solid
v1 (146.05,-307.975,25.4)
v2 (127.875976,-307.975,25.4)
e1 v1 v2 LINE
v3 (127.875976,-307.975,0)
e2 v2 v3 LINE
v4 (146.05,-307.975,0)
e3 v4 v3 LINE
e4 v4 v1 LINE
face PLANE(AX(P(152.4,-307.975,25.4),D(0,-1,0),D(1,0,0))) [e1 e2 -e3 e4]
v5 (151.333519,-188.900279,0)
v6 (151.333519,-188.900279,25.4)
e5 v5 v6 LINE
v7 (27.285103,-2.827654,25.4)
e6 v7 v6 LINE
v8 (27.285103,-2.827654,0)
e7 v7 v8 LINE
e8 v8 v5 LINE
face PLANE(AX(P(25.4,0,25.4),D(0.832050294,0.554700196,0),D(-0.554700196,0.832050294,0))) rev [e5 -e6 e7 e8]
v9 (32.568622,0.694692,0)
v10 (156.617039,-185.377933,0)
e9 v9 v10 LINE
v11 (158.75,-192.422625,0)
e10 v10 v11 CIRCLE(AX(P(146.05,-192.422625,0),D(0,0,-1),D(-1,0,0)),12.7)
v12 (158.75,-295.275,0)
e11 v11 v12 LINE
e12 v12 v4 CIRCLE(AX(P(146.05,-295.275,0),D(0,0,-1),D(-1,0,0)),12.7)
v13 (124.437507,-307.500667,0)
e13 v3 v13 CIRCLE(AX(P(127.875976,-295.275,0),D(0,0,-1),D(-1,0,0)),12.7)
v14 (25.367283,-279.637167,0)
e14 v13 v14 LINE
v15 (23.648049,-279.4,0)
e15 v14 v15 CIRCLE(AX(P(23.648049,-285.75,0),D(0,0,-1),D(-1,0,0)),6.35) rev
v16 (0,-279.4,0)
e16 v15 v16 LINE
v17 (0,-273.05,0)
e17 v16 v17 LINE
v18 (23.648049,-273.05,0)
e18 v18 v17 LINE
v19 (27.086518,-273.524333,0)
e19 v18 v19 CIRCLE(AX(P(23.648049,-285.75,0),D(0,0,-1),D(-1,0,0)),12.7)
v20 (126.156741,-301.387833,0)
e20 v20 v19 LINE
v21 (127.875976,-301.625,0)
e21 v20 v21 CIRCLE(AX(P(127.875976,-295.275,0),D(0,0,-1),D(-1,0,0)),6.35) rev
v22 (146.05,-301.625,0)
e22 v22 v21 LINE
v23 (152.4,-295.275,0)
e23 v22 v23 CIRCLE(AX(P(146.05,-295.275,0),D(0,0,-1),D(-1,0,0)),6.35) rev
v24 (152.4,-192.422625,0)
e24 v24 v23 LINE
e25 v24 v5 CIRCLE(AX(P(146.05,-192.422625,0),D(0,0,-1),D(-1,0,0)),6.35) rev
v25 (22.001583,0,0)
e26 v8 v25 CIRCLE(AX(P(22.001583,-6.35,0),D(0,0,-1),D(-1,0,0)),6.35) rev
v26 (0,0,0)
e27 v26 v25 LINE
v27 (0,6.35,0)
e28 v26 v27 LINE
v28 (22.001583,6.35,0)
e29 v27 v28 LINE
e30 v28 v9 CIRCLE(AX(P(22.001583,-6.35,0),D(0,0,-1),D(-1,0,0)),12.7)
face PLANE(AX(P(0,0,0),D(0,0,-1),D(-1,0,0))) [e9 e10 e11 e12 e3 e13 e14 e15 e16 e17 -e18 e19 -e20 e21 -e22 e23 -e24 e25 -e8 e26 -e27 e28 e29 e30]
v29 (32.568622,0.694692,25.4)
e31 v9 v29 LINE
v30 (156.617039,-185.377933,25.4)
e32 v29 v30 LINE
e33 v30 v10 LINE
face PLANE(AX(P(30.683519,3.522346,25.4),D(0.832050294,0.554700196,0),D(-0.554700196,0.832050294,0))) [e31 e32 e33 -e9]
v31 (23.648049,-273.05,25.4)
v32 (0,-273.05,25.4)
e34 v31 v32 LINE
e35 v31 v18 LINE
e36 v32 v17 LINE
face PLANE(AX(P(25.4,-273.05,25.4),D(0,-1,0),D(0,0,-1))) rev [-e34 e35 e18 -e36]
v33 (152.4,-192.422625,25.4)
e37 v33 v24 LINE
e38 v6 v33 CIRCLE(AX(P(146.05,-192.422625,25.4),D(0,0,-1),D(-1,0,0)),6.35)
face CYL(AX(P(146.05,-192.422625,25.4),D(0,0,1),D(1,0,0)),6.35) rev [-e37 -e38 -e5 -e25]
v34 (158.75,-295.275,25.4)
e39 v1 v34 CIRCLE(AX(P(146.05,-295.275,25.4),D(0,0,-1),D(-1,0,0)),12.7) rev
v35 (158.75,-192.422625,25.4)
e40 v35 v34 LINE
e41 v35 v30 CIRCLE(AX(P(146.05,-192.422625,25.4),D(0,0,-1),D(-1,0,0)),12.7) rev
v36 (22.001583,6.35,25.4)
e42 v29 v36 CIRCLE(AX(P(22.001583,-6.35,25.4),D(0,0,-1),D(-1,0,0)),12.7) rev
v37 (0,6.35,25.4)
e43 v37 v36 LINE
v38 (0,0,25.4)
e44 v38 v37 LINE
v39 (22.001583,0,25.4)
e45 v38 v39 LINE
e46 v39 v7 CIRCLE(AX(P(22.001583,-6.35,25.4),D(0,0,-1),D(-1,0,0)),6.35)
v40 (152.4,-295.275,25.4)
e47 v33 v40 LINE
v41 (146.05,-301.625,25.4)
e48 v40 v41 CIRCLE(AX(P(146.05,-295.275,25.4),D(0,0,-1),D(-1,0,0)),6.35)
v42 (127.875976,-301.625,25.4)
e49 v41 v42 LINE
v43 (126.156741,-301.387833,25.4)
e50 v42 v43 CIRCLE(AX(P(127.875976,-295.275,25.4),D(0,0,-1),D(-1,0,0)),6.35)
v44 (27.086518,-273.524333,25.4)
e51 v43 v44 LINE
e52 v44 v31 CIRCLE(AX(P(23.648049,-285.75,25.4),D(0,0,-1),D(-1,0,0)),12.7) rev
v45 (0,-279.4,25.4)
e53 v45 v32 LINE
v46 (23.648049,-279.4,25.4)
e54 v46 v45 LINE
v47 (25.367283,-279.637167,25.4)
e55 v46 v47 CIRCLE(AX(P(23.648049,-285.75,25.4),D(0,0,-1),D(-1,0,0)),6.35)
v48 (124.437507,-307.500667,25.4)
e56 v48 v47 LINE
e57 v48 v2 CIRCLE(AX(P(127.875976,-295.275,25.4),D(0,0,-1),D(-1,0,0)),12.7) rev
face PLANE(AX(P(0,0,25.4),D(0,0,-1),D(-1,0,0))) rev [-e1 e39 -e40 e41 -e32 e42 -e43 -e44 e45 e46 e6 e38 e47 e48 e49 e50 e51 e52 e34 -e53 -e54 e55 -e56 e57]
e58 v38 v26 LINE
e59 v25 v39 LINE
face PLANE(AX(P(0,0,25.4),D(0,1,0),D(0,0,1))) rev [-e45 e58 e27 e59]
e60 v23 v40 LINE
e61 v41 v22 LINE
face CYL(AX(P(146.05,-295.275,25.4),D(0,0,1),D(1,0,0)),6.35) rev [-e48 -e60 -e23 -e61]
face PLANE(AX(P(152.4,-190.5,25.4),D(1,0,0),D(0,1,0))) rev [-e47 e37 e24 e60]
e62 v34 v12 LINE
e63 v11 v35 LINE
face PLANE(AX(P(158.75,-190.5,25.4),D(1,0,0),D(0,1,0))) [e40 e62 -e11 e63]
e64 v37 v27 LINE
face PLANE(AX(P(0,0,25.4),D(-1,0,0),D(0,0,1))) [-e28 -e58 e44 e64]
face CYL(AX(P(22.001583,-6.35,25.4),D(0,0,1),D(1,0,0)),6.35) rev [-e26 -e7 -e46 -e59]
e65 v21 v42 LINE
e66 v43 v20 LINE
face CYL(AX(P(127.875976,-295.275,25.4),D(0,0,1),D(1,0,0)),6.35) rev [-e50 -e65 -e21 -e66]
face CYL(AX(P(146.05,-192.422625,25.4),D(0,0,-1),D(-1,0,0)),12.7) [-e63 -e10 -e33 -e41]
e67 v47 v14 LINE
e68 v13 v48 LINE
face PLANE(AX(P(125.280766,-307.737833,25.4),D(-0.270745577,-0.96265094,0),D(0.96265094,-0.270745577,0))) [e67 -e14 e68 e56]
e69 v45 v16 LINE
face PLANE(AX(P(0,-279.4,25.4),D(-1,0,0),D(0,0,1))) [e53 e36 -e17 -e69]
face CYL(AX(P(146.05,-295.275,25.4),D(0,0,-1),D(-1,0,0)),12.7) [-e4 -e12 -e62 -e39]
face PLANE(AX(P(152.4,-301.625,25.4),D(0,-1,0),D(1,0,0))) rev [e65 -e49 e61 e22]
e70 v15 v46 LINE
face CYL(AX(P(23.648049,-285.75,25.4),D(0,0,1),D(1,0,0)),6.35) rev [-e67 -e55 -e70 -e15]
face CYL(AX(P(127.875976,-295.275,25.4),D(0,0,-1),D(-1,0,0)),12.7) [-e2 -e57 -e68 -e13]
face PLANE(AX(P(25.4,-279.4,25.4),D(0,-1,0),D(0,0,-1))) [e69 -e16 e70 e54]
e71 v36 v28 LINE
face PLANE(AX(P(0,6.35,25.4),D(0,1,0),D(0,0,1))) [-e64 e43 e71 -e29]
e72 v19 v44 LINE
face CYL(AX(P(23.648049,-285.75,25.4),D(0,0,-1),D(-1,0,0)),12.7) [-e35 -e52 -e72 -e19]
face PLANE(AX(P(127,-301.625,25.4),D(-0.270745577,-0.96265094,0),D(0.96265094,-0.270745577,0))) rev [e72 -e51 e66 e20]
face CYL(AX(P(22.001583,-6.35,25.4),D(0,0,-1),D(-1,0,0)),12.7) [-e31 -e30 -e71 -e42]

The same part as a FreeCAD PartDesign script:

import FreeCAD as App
import Part
import Sketcher
from FreeCAD import Vector
Q = App.Units.Quantity


def edges_at(feature, points):
    """Names of the edges that pass closest to the given points."""
    edges = feature.Shape.Edges
    near = lambda p: min(range(len(edges)), key=lambda i: edges[i].distToShape(Part.Vertex(*p))[0])
    return sorted({f"Edge{near(p) + 1}" for p in points})

doc = App.newDocument("Part")
body = doc.addObject("PartDesign::Body", "Body")

sketch1 = body.newObject("Sketcher::SketchObject", "Sketch")
sketch1.AttachmentSupport = (doc.getObject("XY_Plane"), [""])
sketch1.MapMode = "FlatFace"
sketch1.addGeometry([
    Part.LineSegment(Vector(0, 0, 0), Vector(25, 0, 0)),
    Part.LineSegment(Vector(25, 0, 0), Vector(152, -190, 0)),
    Part.LineSegment(Vector(152, -190, 0), Vector(152, -302, 0)),
    Part.LineSegment(Vector(152, -302, 0), Vector(127, -302, 0)),
    Part.LineSegment(Vector(127, -302, 0), Vector(25, -273, 0)),
    Part.LineSegment(Vector(25, -273, 0), Vector(0, -273, 0)),
    Part.LineSegment(Vector(0, -273, 0), Vector(0, -279, 0)),
    Part.LineSegment(Vector(0, -279, 0), Vector(25, -279, 0)),
    Part.LineSegment(Vector(25, -279, 0), Vector(126, -308, 0)),
    Part.LineSegment(Vector(126, -308, 0), Vector(159, -308, 0)),
    Part.LineSegment(Vector(159, -308, 0), Vector(159, -189, 0)),
    Part.LineSegment(Vector(159, -189, 0), Vector(29, 6, 0)),
    Part.LineSegment(Vector(29, 6, 0), Vector(0, 6, 0)),
    Part.LineSegment(Vector(0, 6, 0), Vector(0, 0, 0)),
], False)
sketch1.addConstraint([
    Sketcher.Constraint("Coincident", 0, 2, 1, 1),
    Sketcher.Constraint("Coincident", 1, 2, 2, 1),
    Sketcher.Constraint("Coincident", 2, 2, 3, 1),
    Sketcher.Constraint("Coincident", 3, 2, 4, 1),
    Sketcher.Constraint("Coincident", 4, 2, 5, 1),
    Sketcher.Constraint("Coincident", 5, 2, 6, 1),
    Sketcher.Constraint("Coincident", 6, 2, 7, 1),
    Sketcher.Constraint("Coincident", 7, 2, 8, 1),
    Sketcher.Constraint("Coincident", 8, 2, 9, 1),
    Sketcher.Constraint("Coincident", 9, 2, 10, 1),
    Sketcher.Constraint("Coincident", 10, 2, 11, 1),
    Sketcher.Constraint("Coincident", 11, 2, 12, 1),
    Sketcher.Constraint("Coincident", 12, 2, 13, 1),
    Sketcher.Constraint("Coincident", 13, 2, 0, 1),
    Sketcher.Constraint("Horizontal", 0),
    Sketcher.Constraint("Vertical", 2),
    Sketcher.Constraint("Horizontal", 3),
    Sketcher.Constraint("Horizontal", 5),
    Sketcher.Constraint("Vertical", 6),
    Sketcher.Constraint("Horizontal", 7),
    Sketcher.Constraint("Horizontal", 9),
    Sketcher.Constraint("Vertical", 10),
    Sketcher.Constraint("Horizontal", 12),
    Sketcher.Constraint("Vertical", 13),
    Sketcher.Constraint("Coincident", 13, 2, -1, 1),
    Sketcher.Constraint("PointOnObject", 5, 2, -2),
    Sketcher.Constraint("Parallel", 4, 8),
    Sketcher.Constraint("Parallel", 1, 11),
    Sketcher.Constraint("Vertical", 0, 2, 4, 2),
    Sketcher.Constraint("Equal", 0, 3),
    Sketcher.Constraint("Equal", 6, 13),
    Sketcher.Constraint("Equal", 4, 8),
    Sketcher.Constraint("DistanceX", 0, 1, 0, 2, Q("1 in")),
    Sketcher.Constraint("DistanceX", -1, 1, 1, 2, Q("6 in")),
    Sketcher.Constraint("DistanceY", 6, 2, -1, 1, Q("11 in")),
    Sketcher.Constraint("DistanceY", 6, 2, 6, 1, Q("0.25 in")),
    Sketcher.Constraint("DistanceY", 1, 2, -1, 1, Q("7.5 in")),
    Sketcher.Constraint("DistanceY", 2, 2, 2, 1, Q("4.375 in")),
    Sketcher.Constraint("DistanceX", -1, 1, 9, 2, Q("6.25 in")),
    Sketcher.Constraint("Distance", 11, 234.273548),
    Sketcher.Constraint("DistanceX", 7, 1, 7, 2, 24.524024),
])
pad1 = body.newObject("PartDesign::Pad", "Pad")
pad1.Profile = sketch1
pad1.Length = Q("1 in")
doc.recompute()

fillet = body.newObject("PartDesign::Fillet", "Fillet")
fillet.Base = (pad1, edges_at(pad1, [
    (127, -301.625, 12.7),
    (152.4, -301.625, 12.7),
    (152.4, -190.5, 12.7),
    (25.4, 0, 12.7),
    (24.524, -279.4, 12.7),
]))
fillet.Radius = Q("0.25 in")
doc.recompute()

fillet2 = body.newObject("PartDesign::Fillet", "Fillet001")
fillet2.Base = (fillet, edges_at(fillet, [
    (25.4, -273.05, 12.7),
    (28.798, 6.35, 12.7),
    (158.75, -188.577, 12.7),
    (158.75, -307.975, 12.7),
    (126.124, -307.975, 12.7),
]))
fillet2.Radius = Q("0.5 in")

doc.recompute()
